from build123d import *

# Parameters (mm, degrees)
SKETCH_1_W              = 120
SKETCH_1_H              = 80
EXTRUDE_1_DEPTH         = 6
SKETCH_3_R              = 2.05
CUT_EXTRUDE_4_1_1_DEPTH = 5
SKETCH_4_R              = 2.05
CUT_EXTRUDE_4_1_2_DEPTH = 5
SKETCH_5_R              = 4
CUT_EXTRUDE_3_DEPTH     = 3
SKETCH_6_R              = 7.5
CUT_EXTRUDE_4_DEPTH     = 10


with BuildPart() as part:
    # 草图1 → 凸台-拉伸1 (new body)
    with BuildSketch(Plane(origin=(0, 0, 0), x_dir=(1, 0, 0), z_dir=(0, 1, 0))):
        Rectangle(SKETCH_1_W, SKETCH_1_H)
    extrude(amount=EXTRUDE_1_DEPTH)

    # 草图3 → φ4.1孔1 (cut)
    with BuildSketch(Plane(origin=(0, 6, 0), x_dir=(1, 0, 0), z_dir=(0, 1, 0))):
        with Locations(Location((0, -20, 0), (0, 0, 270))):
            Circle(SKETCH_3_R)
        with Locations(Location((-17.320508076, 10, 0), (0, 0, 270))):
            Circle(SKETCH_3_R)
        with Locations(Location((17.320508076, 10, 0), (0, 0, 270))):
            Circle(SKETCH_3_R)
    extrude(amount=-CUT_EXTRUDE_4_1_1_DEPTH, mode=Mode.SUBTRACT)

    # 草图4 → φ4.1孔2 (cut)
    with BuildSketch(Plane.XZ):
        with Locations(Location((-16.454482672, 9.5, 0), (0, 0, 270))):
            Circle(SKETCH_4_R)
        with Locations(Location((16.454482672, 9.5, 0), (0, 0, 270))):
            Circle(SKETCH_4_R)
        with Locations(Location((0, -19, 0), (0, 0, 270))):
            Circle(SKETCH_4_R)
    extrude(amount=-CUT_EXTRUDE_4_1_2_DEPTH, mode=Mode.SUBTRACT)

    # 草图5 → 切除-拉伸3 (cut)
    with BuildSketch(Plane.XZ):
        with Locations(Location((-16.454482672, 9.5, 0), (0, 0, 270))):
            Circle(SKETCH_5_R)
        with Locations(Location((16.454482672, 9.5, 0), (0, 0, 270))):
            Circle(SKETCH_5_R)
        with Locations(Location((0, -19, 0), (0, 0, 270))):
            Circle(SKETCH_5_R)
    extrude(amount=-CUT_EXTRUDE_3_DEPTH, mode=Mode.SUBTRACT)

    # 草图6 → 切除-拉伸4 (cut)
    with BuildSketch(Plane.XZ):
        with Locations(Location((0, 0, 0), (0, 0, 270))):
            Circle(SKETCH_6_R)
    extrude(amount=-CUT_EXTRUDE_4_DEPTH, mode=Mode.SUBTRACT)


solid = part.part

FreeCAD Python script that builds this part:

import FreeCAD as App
import Part
import Sketcher
Q = App.Units.Quantity

doc = App.newDocument("Part")
body = doc.addObject("PartDesign::Body", "Body")

sketch1 = doc.addObject("Sketcher::SketchObject", "Sketch")
body.addObject(sketch1)
sketch1.AttachmentSupport = (doc.XZ_Plane, [""])
sketch1.MapMode = "FlatFace"
sketch1.addGeometry([
    Part.LineSegment(App.Vector(-60, -40, 0), App.Vector(-60, 40, 0)),
    Part.LineSegment(App.Vector(-60, 40, 0), App.Vector(60, 40, 0)),
    Part.LineSegment(App.Vector(60, 40, 0), App.Vector(60, -40, 0)),
    Part.LineSegment(App.Vector(60, -40, 0), App.Vector(-60, -40, 0)),
], False)
sketch1.addConstraint([
    Sketcher.Constraint("Coincident", 0, 2, 1, 1),
    Sketcher.Constraint("Coincident", 1, 2, 2, 1),
    Sketcher.Constraint("Coincident", 2, 2, 3, 1),
    Sketcher.Constraint("Coincident", 3, 2, 0, 1),
    Sketcher.Constraint("Vertical", 0),
    Sketcher.Constraint("Horizontal", 1),
    Sketcher.Constraint("Vertical", 2),
    Sketcher.Constraint("Horizontal", 3),
    Sketcher.Constraint("Symmetric", 0, 2, 2, 2, -1, 1),
    Sketcher.Constraint("DistanceX", 1, 1, 1, 2, Q("120 mm")),
    Sketcher.Constraint("DistanceY", 0, 1, 0, 2, Q("80 mm")),
])
pad1 = doc.addObject("PartDesign::Pad", "Pad")
body.addObject(pad1)
pad1.Profile = sketch1
pad1.Length = 6
pad1.Reversed = True

sketch2 = doc.addObject("Sketcher::SketchObject", "Sketch001")
body.addObject(sketch2)
sketch2.AttachmentSupport = (doc.XZ_Plane, [""])
sketch2.MapMode = "FlatFace"
sketch2.AttachmentOffset = App.Placement(App.Vector(0, 0, -6), App.Rotation())
sketch2.addGeometry([
    Part.Circle(App.Vector(0, 20, 0), App.Vector(0, 0, 1), 2.05),
    Part.Circle(App.Vector(-17.320508, -10, 0), App.Vector(0, 0, 1), 2.05),
    Part.Circle(App.Vector(17.320508, -10, 0), App.Vector(0, 0, 1), 2.05),
], False)
sketch2.addConstraint([
    Sketcher.Constraint("Equal", 0, 1),
    Sketcher.Constraint("Equal", 1, 2),
    Sketcher.Constraint("Symmetric", 1, 3, 2, 3, -2),
    Sketcher.Constraint("PointOnObject", 0, 3, -2),
    Sketcher.Constraint("Diameter", 0, Q("4.1 mm")),
    Sketcher.Constraint("DistanceY", -1, 1, 0, 3, Q("20 mm")),
    Sketcher.Constraint("DistanceY", 1, 3, -1, 1, Q("10 mm")),
    Sketcher.Constraint("DistanceX", 1, 3, -1, 1, Q("17.320508 mm")),
])
pocket1 = doc.addObject("PartDesign::Pocket", "Pocket")
body.addObject(pocket1)
pocket1.Profile = sketch2
pocket1.Length = 5
pocket1.Reversed = True

sketch3 = doc.addObject("Sketcher::SketchObject", "Sketch002")
body.addObject(sketch3)
sketch3.AttachmentSupport = (doc.XZ_Plane, [""])
sketch3.MapMode = "FlatFace"
sketch3.addGeometry([
    Part.Circle(App.Vector(-16.454483, 9.5, 0), App.Vector(0, 0, 1), 2.05),
    Part.Circle(App.Vector(16.454483, 9.5, 0), App.Vector(0, 0, 1), 2.05),
    Part.Circle(App.Vector(0, -19, 0), App.Vector(0, 0, 1), 2.05),
], False)
sketch3.addConstraint([
    Sketcher.Constraint("Equal", 0, 1),
    Sketcher.Constraint("Equal", 1, 2),
    Sketcher.Constraint("Symmetric", 0, 3, 1, 3, -2),
    Sketcher.Constraint("PointOnObject", 2, 3, -2),
    Sketcher.Constraint("Diameter", 0, Q("4.1 mm")),
    Sketcher.Constraint("DistanceY", 2, 3, -1, 1, Q("19 mm")),
    Sketcher.Constraint("DistanceY", -1, 1, 0, 3, Q("9.5 mm")),
    Sketcher.Constraint("DistanceX", 0, 3, -1, 1, Q("16.454483 mm")),
])
pocket2 = doc.addObject("PartDesign::Pocket", "Pocket001")
body.addObject(pocket2)
pocket2.Profile = sketch3
pocket2.Length = 5

sketch4 = doc.addObject("Sketcher::SketchObject", "Sketch003")
body.addObject(sketch4)
sketch4.AttachmentSupport = (doc.XZ_Plane, [""])
sketch4.MapMode = "FlatFace"
sketch4.addGeometry([
    Part.Circle(App.Vector(-16.454483, 9.5, 0), App.Vector(0, 0, 1), 4),
    Part.Circle(App.Vector(16.454483, 9.5, 0), App.Vector(0, 0, 1), 4),
    Part.Circle(App.Vector(0, -19, 0), App.Vector(0, 0, 1), 4),
], False)
sketch4.addConstraint([
    Sketcher.Constraint("Equal", 0, 1),
    Sketcher.Constraint("Equal", 1, 2),
    Sketcher.Constraint("Symmetric", 0, 3, 1, 3, -2),
    Sketcher.Constraint("PointOnObject", 2, 3, -2),
    Sketcher.Constraint("Diameter", 0, Q("8 mm")),
    Sketcher.Constraint("DistanceY", 2, 3, -1, 1, Q("19 mm")),
    Sketcher.Constraint("DistanceY", -1, 1, 0, 3, Q("9.5 mm")),
    Sketcher.Constraint("DistanceX", 0, 3, -1, 1, Q("16.454483 mm")),
])
pocket3 = doc.addObject("PartDesign::Pocket", "Pocket002")
body.addObject(pocket3)
pocket3.Profile = sketch4
pocket3.Length = 3

sketch5 = doc.addObject("Sketcher::SketchObject", "Sketch004")
body.addObject(sketch5)
sketch5.AttachmentSupport = (doc.XZ_Plane, [""])
sketch5.MapMode = "FlatFace"
sketch5.addGeometry(Part.Circle(App.Vector(0, 0, 0), App.Vector(0, 0, 1), 7.5), False)
sketch5.addConstraint([
    Sketcher.Constraint("Coincident", 0, 3, -1, 1),
    Sketcher.Constraint("Diameter", 0, Q("15 mm")),
])
pocket4 = doc.addObject("PartDesign::Pocket", "Pocket003")
body.addObject(pocket4)
pocket4.Profile = sketch5
pocket4.Length = 10

doc.recompute()
